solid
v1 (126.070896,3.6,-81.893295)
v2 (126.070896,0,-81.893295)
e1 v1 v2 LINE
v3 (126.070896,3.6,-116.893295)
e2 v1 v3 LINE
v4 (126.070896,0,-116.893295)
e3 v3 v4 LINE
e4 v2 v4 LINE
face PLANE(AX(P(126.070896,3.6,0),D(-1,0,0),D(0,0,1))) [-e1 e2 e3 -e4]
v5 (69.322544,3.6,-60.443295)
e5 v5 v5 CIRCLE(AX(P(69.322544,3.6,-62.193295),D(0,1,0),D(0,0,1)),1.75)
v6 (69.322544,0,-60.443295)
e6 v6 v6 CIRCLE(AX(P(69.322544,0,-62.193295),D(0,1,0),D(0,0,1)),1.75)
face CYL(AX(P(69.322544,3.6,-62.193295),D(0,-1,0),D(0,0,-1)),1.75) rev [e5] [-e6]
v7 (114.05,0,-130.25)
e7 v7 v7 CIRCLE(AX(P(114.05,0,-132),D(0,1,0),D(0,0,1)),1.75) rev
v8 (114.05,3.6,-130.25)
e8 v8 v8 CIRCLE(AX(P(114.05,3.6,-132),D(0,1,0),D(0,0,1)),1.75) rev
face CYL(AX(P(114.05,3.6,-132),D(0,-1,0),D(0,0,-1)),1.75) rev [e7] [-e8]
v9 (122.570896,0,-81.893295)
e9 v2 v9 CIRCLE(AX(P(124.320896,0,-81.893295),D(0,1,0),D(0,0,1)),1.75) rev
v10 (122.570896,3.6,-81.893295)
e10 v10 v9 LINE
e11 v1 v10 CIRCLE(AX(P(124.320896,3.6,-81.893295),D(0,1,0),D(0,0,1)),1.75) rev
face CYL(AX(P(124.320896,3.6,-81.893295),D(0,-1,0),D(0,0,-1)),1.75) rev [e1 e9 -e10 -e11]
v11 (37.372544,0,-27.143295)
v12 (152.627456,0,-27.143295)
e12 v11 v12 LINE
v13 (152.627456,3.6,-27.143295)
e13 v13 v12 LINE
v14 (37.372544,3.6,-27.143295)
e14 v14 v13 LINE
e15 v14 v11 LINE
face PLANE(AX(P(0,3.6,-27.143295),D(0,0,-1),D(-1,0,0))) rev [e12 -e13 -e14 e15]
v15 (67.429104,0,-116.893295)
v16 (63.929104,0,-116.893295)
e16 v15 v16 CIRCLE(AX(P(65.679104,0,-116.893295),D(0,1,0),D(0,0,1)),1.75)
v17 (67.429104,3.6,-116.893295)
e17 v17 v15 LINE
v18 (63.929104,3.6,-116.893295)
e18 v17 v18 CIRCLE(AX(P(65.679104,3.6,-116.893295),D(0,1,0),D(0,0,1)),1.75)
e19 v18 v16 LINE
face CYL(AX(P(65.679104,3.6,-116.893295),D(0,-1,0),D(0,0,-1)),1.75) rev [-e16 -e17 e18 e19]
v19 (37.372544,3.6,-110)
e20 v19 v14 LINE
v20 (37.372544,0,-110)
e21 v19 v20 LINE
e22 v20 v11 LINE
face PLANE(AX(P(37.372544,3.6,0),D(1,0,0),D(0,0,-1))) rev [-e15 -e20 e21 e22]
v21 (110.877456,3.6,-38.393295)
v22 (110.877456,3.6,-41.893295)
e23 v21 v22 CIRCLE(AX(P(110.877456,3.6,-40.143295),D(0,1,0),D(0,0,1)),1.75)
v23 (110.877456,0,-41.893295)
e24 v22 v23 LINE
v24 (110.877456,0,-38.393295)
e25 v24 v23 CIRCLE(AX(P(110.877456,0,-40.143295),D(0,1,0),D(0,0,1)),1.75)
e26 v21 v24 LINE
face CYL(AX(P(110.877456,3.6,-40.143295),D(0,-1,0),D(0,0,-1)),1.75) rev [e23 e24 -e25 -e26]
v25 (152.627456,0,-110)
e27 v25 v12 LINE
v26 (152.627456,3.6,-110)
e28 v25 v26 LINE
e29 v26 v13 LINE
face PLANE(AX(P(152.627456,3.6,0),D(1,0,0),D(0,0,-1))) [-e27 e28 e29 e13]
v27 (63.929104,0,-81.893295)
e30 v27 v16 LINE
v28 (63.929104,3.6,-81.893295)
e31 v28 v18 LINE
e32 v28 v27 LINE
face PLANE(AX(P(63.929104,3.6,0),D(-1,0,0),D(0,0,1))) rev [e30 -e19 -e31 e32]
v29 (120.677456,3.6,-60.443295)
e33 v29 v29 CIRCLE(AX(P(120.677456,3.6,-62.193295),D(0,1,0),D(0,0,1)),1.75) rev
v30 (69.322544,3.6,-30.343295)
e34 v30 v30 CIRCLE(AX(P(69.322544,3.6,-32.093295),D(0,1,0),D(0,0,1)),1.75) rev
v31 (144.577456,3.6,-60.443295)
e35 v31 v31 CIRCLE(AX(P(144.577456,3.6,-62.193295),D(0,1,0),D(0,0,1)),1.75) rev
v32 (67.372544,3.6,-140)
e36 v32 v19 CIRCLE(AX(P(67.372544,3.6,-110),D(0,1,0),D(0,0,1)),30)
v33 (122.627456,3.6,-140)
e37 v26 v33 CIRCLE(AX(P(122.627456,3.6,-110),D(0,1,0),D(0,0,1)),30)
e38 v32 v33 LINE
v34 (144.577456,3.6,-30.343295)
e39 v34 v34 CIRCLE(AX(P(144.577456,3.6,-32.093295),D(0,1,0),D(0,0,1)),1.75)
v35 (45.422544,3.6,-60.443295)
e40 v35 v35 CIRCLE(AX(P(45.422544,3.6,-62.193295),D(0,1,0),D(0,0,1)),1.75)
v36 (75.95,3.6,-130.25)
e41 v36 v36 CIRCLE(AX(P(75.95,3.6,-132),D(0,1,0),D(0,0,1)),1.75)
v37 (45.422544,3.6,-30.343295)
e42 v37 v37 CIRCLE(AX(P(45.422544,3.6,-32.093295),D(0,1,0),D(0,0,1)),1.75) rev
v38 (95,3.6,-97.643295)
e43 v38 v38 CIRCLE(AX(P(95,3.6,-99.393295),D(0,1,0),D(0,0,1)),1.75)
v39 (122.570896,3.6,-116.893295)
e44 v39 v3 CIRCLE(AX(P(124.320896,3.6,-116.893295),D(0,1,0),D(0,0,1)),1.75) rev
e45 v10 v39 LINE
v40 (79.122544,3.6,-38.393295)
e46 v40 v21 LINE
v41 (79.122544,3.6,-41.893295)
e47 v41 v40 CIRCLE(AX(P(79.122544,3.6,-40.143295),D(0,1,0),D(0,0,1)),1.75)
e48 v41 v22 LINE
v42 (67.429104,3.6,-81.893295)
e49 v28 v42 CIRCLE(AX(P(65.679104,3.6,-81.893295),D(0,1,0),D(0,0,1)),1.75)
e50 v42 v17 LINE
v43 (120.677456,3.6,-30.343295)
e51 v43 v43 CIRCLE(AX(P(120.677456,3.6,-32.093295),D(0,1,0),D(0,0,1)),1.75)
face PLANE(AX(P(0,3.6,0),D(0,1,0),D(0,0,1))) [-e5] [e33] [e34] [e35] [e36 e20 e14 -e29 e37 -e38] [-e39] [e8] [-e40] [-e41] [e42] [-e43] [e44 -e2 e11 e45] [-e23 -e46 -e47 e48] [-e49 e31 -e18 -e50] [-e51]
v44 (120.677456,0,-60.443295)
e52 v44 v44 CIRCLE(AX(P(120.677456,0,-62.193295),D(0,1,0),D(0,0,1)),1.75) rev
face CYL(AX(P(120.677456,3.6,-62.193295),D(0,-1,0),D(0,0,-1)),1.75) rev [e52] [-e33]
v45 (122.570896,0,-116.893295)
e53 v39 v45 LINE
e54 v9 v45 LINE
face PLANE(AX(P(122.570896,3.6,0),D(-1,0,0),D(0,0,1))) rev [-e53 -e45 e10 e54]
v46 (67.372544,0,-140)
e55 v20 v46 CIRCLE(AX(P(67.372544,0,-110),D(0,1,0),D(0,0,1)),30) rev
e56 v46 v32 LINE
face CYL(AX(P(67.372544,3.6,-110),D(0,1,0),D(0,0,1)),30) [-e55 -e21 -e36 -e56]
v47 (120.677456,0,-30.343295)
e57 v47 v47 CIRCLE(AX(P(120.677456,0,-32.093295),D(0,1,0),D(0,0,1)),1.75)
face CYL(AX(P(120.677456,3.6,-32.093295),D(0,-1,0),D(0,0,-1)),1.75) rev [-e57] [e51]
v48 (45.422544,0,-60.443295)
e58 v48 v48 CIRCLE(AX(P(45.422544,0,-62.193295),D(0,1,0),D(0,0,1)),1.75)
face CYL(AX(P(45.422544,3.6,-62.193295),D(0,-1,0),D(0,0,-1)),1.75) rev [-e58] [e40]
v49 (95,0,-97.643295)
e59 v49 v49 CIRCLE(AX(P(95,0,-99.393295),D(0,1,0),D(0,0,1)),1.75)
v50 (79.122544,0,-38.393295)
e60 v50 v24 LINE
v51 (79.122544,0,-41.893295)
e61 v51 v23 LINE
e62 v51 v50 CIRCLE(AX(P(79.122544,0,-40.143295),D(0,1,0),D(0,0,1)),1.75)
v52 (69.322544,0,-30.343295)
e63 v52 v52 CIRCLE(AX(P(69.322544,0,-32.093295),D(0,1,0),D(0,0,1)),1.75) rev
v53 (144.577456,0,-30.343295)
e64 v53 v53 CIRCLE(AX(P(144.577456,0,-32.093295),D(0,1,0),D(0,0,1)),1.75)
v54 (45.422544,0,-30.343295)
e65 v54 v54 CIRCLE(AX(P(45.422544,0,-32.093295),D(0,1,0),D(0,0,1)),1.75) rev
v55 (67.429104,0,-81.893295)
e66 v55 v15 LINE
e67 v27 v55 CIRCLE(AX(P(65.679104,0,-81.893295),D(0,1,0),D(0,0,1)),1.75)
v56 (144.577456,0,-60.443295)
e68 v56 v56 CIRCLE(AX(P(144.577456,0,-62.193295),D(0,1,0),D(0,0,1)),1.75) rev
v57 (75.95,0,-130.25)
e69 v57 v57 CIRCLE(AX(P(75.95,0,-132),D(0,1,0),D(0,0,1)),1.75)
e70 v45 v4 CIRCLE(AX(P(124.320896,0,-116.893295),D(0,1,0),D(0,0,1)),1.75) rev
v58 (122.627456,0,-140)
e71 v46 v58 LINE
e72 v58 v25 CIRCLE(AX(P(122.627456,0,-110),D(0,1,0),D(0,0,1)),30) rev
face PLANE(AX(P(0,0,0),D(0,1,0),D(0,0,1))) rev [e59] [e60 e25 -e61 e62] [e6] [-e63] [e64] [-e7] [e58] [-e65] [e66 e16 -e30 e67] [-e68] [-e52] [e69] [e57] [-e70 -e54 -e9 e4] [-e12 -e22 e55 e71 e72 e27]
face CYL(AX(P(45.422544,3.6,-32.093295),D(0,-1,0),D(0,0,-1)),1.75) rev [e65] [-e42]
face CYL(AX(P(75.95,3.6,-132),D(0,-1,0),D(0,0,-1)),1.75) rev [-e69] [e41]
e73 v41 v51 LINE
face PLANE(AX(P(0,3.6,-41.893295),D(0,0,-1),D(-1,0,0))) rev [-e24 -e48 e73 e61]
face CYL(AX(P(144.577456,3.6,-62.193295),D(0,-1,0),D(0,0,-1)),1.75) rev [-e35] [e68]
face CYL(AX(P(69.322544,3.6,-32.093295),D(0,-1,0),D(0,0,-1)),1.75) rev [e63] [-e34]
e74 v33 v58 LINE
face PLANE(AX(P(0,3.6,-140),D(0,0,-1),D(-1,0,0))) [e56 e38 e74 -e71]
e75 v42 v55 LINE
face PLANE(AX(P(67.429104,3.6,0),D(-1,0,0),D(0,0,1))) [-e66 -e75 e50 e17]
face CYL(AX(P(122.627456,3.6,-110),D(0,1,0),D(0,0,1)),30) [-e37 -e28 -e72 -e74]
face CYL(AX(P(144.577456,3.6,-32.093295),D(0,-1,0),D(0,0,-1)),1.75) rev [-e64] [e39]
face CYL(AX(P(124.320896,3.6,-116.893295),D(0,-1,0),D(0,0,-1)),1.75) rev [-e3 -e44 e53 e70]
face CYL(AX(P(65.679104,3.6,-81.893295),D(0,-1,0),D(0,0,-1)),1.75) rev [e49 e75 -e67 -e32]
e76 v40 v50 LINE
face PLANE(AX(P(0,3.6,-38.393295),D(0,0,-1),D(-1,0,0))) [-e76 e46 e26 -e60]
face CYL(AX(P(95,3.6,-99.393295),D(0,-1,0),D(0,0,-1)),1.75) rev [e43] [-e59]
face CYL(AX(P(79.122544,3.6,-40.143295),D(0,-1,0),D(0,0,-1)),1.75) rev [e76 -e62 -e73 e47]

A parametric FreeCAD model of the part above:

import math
import FreeCAD as App
import Part
import Sketcher
from FreeCAD import Vector


def edges_at(feature, points):
    """Names of the edges that pass closest to the given points."""
    edges = feature.Shape.Edges
    near = lambda p: min(range(len(edges)), key=lambda i: edges[i].distToShape(Part.Vertex(*p))[0])
    return sorted({f"Edge{near(p) + 1}" for p in points})


def add_polygon(sketch, points):
    """Adds a closed chain of lines whose ends are joined by coincident constraints."""
    first, n = sketch.GeometryCount, len(points)
    for a, b in zip(points, points[1:] + points[:1]):
        sketch.addGeometry(Part.LineSegment(App.Vector(*a, 0), App.Vector(*b, 0)), False)
    for i in range(n):
        sketch.addConstraint(Sketcher.Constraint("Coincident", first + i, 2, first + (i + 1) % n, 1))

doc = App.newDocument("Part")
body = doc.addObject("PartDesign::Body", "Body")

sketch1 = body.newObject("Sketcher::SketchObject", "Sketch")
sketch1.AttachmentSupport = (doc.getObject("XZ_Plane"), [""])
sketch1.MapMode = "FlatFace"
add_polygon(sketch1, [(37.4, -140), (37.4, -27.1), (152.6, -27.1), (152.6, -140)])
sketch1.addGeometry(Part.Circle(Vector(45.4, -32.1, 0), Vector(0, 0, 1), 1.8), False)
sketch1.addGeometry(Part.Circle(Vector(69.3, -32.1, 0), Vector(0, 0, 1), 1.8), False)
sketch1.addGeometry(Part.Circle(Vector(45.4, -62.2, 0), Vector(0, 0, 1), 1.8), False)
sketch1.addGeometry(Part.Circle(Vector(69.3, -62.2, 0), Vector(0, 0, 1), 1.8), False)
sketch1.addGeometry(Part.ArcOfCircle(Part.Circle(Vector(79.1, -40.1, 0), Vector(0, 0, 1), 1.8), math.radians(90), math.radians(270)), False)
sketch1.addGeometry(Part.LineSegment(Vector(79.1, -41.9, 0), Vector(110.9, -41.9, 0)), False)
sketch1.addGeometry(Part.ArcOfCircle(Part.Circle(Vector(110.9, -40.1, 0), Vector(0, 0, 1), 1.8), math.radians(-90), math.radians(90)), False)
sketch1.addGeometry(Part.LineSegment(Vector(110.9, -38.4, 0), Vector(79.1, -38.4, 0)), False)
sketch1.addGeometry(Part.Circle(Vector(120.7, -32.1, 0), Vector(0, 0, 1), 1.8), False)
sketch1.addGeometry(Part.Circle(Vector(144.6, -32.1, 0), Vector(0, 0, 1), 1.8), False)
sketch1.addGeometry(Part.Circle(Vector(120.7, -62.2, 0), Vector(0, 0, 1), 1.8), False)
sketch1.addGeometry(Part.Circle(Vector(144.6, -62.2, 0), Vector(0, 0, 1), 1.8), False)
sketch1.addGeometry(Part.LineSegment(Vector(67.4, -116.9, 0), Vector(67.4, -81.9, 0)), False)
sketch1.addGeometry(Part.ArcOfCircle(Part.Circle(Vector(65.7, -81.9, 0), Vector(0, 0, 1), 1.8), math.radians(0), math.radians(180)), False)
sketch1.addGeometry(Part.LineSegment(Vector(63.9, -81.9, 0), Vector(63.9, -116.9, 0)), False)
sketch1.addGeometry(Part.ArcOfCircle(Part.Circle(Vector(65.7, -116.9, 0), Vector(0, 0, 1), 1.8), math.radians(180), math.radians(360)), False)
sketch1.addGeometry(Part.Circle(Vector(76, -132, 0), Vector(0, 0, 1), 1.8), False)
sketch1.addGeometry(Part.Circle(Vector(95, -99.4, 0), Vector(0, 0, 1), 1.8), False)
sketch1.addGeometry(Part.ArcOfCircle(Part.Circle(Vector(124.3, -116.9, 0), Vector(0, 0, 1), 1.8), math.radians(180), math.radians(360)), False)
sketch1.addGeometry(Part.LineSegment(Vector(126.1, -116.9, 0), Vector(126.1, -81.9, 0)), False)
sketch1.addGeometry(Part.ArcOfCircle(Part.Circle(Vector(124.3, -81.9, 0), Vector(0, 0, 1), 1.8), math.radians(0), math.radians(180)), False)
sketch1.addGeometry(Part.LineSegment(Vector(122.6, -81.9, 0), Vector(122.6, -116.9, 0)), False)
sketch1.addGeometry(Part.Circle(Vector(114, -132, 0), Vector(0, 0, 1), 1.8), False)
sketch1.addConstraint([
    Sketcher.Constraint("Tangent", 8, 2, 9, 1),
    Sketcher.Constraint("Tangent", 9, 2, 10, 1),
    Sketcher.Constraint("Tangent", 10, 2, 11, 1),
    Sketcher.Constraint("Tangent", 11, 2, 8, 1),
    Sketcher.Constraint("Tangent", 16, 2, 17, 1),
    Sketcher.Constraint("Tangent", 17, 2, 18, 1),
    Sketcher.Constraint("Tangent", 18, 2, 19, 1),
    Sketcher.Constraint("Tangent", 19, 2, 16, 1),
    Sketcher.Constraint("Tangent", 22, 2, 23, 1),
    Sketcher.Constraint("Tangent", 23, 2, 24, 1),
    Sketcher.Constraint("Tangent", 24, 2, 25, 1),
    Sketcher.Constraint("Tangent", 25, 2, 22, 1),
    Sketcher.Constraint("Vertical", 0),
    Sketcher.Constraint("Horizontal", 1),
    Sketcher.Constraint("Vertical", 2),
    Sketcher.Constraint("Horizontal", 3),
    Sketcher.Constraint("Horizontal", 9),
    Sketcher.Constraint("Horizontal", 11),
    Sketcher.Constraint("Vertical", 16),
    Sketcher.Constraint("Vertical", 18),
    Sketcher.Constraint("Vertical", 23),
    Sketcher.Constraint("Vertical", 25),
    Sketcher.Constraint("Equal", 4, 5),
    Sketcher.Constraint("Equal", 5, 6),
    Sketcher.Constraint("Equal", 6, 7),
    Sketcher.Constraint("Equal", 7, 8),
    Sketcher.Constraint("Equal", 10, 12),
    Sketcher.Constraint("Equal", 12, 13),
    Sketcher.Constraint("Equal", 13, 14),
    Sketcher.Constraint("Equal", 14, 15),
    Sketcher.Constraint("Equal", 15, 17),
    Sketcher.Constraint("Equal", 19, 20),
    Sketcher.Constraint("Equal", 20, 21),
    Sketcher.Constraint("Equal", 21, 22),
    Sketcher.Constraint("Equal", 24, 26),
    Sketcher.Constraint("Horizontal", 4, 3, 5, 3),
    Sketcher.Constraint("Horizontal", 6, 3, 7, 3),
    Sketcher.Constraint("Horizontal", 5, 3, 12, 3),
    Sketcher.Constraint("Horizontal", 12, 3, 13, 3),
    Sketcher.Constraint("Horizontal", 7, 3, 14, 3),
    Sketcher.Constraint("Horizontal", 14, 3, 15, 3),
    Sketcher.Constraint("Horizontal", 19, 3, 22, 3),
    Sketcher.Constraint("Horizontal", 17, 3, 24, 3),
    Sketcher.Constraint("Horizontal", 20, 3, 26, 3),
    Sketcher.Constraint("Vertical", 4, 3, 6, 3),
    Sketcher.Constraint("Vertical", 5, 3, 7, 3),
    Sketcher.Constraint("Vertical", 12, 3, 14, 3),
    Sketcher.Constraint("Vertical", 13, 3, 15, 3),
    Sketcher.Constraint("Diameter", 4, 3.5),
    Sketcher.Constraint("DistanceY", 16, 1, 16, 2, 35.0),
    Sketcher.Constraint("DistanceY", 20, 3, -1, 1, 132.0),
    Sketcher.Constraint("DistanceX", -1, 1, 21, 3, 95.0),
    Sketcher.Constraint("DistanceY", 2, 2, -1, 1, 140.0),
    Sketcher.Constraint("DistanceY", 8, 3, 0, 2, 13.0),
    Sketcher.Constraint("DistanceX", 4, 3, 5, 3, 23.9),
    Sketcher.Constraint("DistanceY", 6, 3, 4, 3, 30.1),
    Sketcher.Constraint("DistanceX", 5, 3, 8, 3, 9.8),
    Sketcher.Constraint("DistanceX", 10, 3, 12, 3, 9.8),
    Sketcher.Constraint("DistanceX", 12, 3, 13, 3, 23.9),
    Sketcher.Constraint("DistanceY", 17, 3, 7, 3, 19.7),
    Sketcher.Constraint("DistanceY", 21, 3, 17, 3, 17.5),
    Sketcher.Constraint("DistanceX", 20, 3, 26, 3, 38.1),
    Sketcher.Constraint("DistanceY", 8, 2, 5, 3, 9.8),
    Sketcher.Constraint("DistanceX", -1, 1, 20, 3, 75.95),
    Sketcher.Constraint("DistanceX", 0, 2, 4, 3, 8.05),
    Sketcher.Constraint("DistanceX", 13, 3, 1, 2, 8.05),
    Sketcher.Constraint("DistanceX", 1, 1, 1, 2, 115.254912),
    Sketcher.Constraint("DistanceY", 0, 1, 0, 2, 112.856705),
    Sketcher.Constraint("DistanceX", 17, 3, 7, 3, 3.64344),
    Sketcher.Constraint("DistanceX", 14, 3, 22, 3, 3.64344),
    Sketcher.Constraint("DistanceX", -1, 1, 4, 3, 45.422544),
])
pad1 = body.newObject("PartDesign::Pad", "Pad")
pad1.Profile = sketch1
pad1.Length = 3.6
pad1.Reversed = True
doc.recompute()

fillet = body.newObject("PartDesign::Fillet", "Fillet")
fillet.Base = (pad1, edges_at(pad1, [(37.373, 1.8, -140)]))
fillet.Radius = 30
doc.recompute()

fillet2 = body.newObject("PartDesign::Fillet", "Fillet001")
fillet2.Base = (fillet, edges_at(fillet, [(152.627, 1.8, -140)]))
fillet2.Radius = 30

doc.recompute()
